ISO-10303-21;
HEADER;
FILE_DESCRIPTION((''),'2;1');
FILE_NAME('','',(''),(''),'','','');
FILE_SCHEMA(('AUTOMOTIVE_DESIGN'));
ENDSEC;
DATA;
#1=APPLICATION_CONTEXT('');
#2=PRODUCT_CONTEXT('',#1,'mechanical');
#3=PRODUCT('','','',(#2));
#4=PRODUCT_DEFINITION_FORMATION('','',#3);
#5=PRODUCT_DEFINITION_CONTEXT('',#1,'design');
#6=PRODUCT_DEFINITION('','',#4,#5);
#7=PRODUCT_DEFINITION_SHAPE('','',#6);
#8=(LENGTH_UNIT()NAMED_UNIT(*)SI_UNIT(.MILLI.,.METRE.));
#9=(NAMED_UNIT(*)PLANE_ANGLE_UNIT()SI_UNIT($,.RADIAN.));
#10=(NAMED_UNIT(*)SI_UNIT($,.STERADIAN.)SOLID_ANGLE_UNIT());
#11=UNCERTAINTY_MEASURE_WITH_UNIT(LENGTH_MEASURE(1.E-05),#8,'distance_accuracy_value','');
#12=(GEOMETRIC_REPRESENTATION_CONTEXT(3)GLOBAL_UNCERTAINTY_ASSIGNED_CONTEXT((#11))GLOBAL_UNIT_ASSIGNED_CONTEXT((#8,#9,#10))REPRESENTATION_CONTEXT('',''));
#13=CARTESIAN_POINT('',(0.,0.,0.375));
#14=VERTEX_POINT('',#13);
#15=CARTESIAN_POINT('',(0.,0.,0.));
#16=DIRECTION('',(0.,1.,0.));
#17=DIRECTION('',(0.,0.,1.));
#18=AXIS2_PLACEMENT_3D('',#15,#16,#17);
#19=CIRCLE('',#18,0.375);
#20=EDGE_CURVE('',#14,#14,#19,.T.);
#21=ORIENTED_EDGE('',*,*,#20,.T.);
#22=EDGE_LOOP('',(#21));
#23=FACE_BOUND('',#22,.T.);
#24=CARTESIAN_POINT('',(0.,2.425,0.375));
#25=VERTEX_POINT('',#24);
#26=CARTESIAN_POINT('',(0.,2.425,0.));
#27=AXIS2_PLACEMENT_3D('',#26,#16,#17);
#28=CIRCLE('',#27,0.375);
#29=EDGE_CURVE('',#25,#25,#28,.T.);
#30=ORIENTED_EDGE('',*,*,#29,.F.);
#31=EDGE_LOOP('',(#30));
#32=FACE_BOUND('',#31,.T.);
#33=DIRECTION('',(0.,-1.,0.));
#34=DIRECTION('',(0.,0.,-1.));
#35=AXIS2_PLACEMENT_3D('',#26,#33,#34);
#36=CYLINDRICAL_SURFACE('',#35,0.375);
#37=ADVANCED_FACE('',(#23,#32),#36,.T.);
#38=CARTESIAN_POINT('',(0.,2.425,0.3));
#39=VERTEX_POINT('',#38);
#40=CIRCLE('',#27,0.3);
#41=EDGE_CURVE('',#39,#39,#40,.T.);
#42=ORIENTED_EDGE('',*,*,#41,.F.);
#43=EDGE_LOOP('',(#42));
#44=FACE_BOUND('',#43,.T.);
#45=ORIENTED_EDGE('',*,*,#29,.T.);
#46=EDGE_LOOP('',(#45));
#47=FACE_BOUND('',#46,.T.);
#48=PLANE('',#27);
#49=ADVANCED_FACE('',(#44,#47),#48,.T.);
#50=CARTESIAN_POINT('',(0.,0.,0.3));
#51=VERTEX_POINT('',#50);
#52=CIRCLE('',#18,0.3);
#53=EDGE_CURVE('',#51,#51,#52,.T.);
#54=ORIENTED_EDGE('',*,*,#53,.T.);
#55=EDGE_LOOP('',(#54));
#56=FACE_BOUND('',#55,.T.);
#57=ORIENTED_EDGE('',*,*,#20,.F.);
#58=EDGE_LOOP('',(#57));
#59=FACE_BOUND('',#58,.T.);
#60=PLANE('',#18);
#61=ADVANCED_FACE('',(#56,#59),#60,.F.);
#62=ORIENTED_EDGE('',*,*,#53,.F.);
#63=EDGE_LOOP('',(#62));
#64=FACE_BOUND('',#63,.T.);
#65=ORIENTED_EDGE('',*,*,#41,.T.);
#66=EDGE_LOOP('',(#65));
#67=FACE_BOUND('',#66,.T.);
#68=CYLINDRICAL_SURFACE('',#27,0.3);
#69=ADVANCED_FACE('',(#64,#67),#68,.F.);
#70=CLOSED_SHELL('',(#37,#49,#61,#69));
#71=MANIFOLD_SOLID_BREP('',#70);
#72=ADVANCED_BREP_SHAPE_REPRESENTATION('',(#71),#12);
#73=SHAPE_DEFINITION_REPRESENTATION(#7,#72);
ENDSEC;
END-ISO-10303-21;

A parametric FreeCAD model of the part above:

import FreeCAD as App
import Part
import Sketcher
from FreeCAD import Vector

doc = App.newDocument("Part")
body = doc.addObject("PartDesign::Body", "Body")

# Sketch on XZ plane
sketch1 = doc.addObject("Sketcher::SketchObject", "Sketch")
body.addObject(sketch1)
sketch1.AttachmentSupport = (doc.XZ_Plane, [""])
sketch1.MapMode = "FlatFace"
sketch1.addGeometry(Part.Circle(Vector(0, 0, 0), Vector(0, 0, 1), 0.375), False)
sketch1.addConstraint([
    Sketcher.Constraint("Coincident", 0, 3, -1, 1),
    Sketcher.Constraint("Diameter", 0, 0.75),
])
pad1 = doc.addObject("PartDesign::Pad", "Pad")
body.addObject(pad1)
pad1.Profile = sketch1
pad1.Length = 2.425
pad1.Reversed = True

# Sketch on XZ plane
sketch2 = doc.addObject("Sketcher::SketchObject", "Sketch001")
body.addObject(sketch2)
sketch2.AttachmentSupport = (doc.XZ_Plane, [""])
sketch2.MapMode = "FlatFace"
sketch2.AttachmentOffset = App.Placement(Vector(0, 0, -2.425), App.Rotation())
sketch2.addGeometry(Part.Circle(Vector(0, 0, 0), Vector(0, 0, 1), 0.3), False)
sketch2.addConstraint([
    Sketcher.Constraint("Coincident", 0, 3, -1, 1),
    Sketcher.Constraint("Diameter", 0, 0.6),
])
doc.recompute()
hole = doc.addObject("PartDesign::Hole", "Hole")
body.addObject(hole)
hole.Profile = sketch2
hole.ThreadType = "None"
hole.Diameter = 0.6
hole.DepthType = "Dimension"
hole.Depth = 11.33
hole.DrillPoint = "Angled"
hole.DrillPointAngle = 118
hole.Reversed = True

doc.recompute()
